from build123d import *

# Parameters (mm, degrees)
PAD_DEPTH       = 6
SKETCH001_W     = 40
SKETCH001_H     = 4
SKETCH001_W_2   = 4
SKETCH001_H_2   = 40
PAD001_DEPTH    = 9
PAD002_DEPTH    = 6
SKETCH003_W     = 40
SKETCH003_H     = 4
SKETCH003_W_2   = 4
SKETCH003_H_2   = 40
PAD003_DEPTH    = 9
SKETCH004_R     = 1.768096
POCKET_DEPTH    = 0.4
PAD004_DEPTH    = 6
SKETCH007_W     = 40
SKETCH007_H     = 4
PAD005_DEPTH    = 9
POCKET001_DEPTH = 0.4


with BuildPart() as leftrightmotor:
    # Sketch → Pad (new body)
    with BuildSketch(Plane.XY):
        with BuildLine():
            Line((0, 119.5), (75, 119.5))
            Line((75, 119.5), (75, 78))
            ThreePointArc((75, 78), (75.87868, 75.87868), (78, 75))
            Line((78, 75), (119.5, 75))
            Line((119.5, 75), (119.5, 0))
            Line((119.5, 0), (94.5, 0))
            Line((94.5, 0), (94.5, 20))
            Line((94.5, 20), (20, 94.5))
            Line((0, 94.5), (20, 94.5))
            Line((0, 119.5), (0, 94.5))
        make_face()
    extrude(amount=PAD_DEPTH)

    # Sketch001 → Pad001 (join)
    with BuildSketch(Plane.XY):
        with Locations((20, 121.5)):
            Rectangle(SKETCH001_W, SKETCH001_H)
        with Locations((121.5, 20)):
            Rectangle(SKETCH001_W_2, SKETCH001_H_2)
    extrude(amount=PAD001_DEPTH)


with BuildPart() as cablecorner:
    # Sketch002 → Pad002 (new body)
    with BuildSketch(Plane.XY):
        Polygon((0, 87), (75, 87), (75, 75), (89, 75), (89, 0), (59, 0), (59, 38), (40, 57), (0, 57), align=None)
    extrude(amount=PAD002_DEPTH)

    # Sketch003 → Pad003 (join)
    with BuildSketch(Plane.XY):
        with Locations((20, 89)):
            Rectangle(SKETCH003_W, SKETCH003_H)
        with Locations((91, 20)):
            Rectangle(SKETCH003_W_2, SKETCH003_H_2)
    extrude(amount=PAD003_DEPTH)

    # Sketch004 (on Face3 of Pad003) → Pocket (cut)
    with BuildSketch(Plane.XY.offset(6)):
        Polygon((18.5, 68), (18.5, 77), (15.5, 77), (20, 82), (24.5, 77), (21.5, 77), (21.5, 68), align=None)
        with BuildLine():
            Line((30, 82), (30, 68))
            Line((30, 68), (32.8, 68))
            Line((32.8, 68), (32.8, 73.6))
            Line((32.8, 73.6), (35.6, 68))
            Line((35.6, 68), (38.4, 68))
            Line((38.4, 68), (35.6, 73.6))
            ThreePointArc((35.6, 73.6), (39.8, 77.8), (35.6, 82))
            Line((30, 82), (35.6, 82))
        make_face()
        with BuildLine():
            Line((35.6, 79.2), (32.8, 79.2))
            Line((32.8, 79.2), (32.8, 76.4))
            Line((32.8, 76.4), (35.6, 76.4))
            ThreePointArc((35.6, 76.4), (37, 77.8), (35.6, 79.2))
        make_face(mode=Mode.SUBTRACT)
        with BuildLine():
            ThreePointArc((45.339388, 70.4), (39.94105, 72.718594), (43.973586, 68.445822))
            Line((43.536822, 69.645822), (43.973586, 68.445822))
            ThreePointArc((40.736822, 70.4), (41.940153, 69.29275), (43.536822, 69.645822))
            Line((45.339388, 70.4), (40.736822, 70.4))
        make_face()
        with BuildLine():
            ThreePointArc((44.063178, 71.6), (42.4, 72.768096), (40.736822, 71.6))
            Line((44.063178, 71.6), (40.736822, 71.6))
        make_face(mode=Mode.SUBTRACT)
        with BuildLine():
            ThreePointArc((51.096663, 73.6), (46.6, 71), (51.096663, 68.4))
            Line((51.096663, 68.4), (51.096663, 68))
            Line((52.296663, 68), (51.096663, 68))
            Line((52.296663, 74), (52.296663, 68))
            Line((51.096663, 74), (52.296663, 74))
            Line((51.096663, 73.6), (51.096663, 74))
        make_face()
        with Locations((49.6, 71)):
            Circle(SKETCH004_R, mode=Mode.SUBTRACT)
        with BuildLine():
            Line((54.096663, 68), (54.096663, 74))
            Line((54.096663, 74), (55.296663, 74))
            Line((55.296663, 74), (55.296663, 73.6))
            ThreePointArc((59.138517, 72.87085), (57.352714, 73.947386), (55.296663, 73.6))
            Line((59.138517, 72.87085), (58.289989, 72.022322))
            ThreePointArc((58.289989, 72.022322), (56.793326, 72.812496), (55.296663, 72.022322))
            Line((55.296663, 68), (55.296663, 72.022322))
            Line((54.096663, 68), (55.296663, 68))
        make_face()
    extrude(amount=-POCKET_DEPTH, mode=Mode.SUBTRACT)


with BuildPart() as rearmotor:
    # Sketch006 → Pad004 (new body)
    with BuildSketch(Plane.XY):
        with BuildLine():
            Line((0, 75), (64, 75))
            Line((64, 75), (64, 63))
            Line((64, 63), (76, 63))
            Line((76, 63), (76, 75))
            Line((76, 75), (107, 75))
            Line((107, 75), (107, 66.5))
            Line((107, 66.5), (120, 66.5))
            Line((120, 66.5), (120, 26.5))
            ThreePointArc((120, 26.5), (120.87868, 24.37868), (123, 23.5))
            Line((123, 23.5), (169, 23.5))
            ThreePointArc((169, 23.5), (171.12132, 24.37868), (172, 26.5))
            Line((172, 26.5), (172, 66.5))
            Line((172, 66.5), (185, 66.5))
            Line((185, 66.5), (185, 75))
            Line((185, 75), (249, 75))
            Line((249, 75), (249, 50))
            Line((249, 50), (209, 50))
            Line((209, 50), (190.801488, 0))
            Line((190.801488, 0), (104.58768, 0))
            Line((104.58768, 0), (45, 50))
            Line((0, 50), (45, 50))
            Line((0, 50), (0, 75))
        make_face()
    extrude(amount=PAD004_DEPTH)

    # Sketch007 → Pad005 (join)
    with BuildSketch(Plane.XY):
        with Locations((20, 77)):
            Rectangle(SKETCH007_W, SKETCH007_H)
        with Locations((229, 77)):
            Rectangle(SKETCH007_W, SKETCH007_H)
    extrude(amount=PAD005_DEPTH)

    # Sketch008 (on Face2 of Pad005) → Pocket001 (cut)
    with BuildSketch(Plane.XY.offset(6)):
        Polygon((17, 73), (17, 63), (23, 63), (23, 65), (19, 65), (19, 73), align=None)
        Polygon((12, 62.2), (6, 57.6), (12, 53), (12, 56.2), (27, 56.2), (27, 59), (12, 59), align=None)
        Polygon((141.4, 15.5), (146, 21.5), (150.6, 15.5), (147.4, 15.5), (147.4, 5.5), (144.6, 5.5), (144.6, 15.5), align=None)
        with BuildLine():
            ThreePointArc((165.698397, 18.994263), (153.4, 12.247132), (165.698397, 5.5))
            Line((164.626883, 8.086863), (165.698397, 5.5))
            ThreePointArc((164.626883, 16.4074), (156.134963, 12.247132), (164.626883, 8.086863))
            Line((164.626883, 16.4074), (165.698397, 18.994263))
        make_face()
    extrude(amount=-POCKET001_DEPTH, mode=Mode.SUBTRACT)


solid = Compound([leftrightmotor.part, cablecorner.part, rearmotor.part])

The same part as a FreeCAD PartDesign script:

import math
import FreeCAD as App
import Part
import Sketcher
Q = App.Units.Quantity


def add_polygon(sketch, points):
    """Adds a closed chain of lines whose ends are joined by coincident constraints."""
    first, n = sketch.GeometryCount, len(points)
    for a, b in zip(points, points[1:] + points[:1]):
        sketch.addGeometry(Part.LineSegment(App.Vector(*a, 0), App.Vector(*b, 0)), False)
    for i in range(n):
        sketch.addConstraint(Sketcher.Constraint("Coincident", first + i, 2, first + (i + 1) % n, 1))

doc = App.newDocument("Part")
body = doc.addObject("PartDesign::Body", "Body")

# Sketch on XY plane
sketch1 = doc.addObject("Sketcher::SketchObject", "Sketch")
body.addObject(sketch1)
sketch1.AttachmentSupport = (doc.XY_Plane, [""])
sketch1.MapMode = "FlatFace"
sketch1.addGeometry([
    Part.LineSegment(App.Vector(75, 119.5, 0), App.Vector(0, 119.5, 0)),  # 0
    Part.LineSegment(App.Vector(0, 119.5, 0), App.Vector(0, 94.5, 0)),  # 1
    Part.LineSegment(App.Vector(0, 94.5, 0), App.Vector(20, 94.5, 0)),  # 2
    Part.LineSegment(App.Vector(20, 94.5, 0), App.Vector(94.5, 20, 0)),  # 3
    Part.LineSegment(App.Vector(94.5, 20, 0), App.Vector(94.5, 0, 0)),  # 4
    Part.LineSegment(App.Vector(94.5, 0, 0), App.Vector(119.5, 0, 0)),  # 5
    Part.LineSegment(App.Vector(119.5, 0, 0), App.Vector(119.5, 75, 0)),  # 6
    Part.LineSegment(App.Vector(119.5, 75, 0), App.Vector(78, 75, 0)),  # 7
    Part.ArcOfCircle(Part.Circle(App.Vector(78, 78, 0), App.Vector(0, 0, 1), 3), math.radians(-180), math.radians(-90)),  # 8
    Part.LineSegment(App.Vector(75, 78, 0), App.Vector(75, 119.5, 0)),  # 9
], False)
sketch1.addConstraint([
    Sketcher.Constraint("Coincident", 0, 2, 1, 1),
    Sketcher.Constraint("Coincident", 1, 2, 2, 1),
    Sketcher.Constraint("Coincident", 2, 2, 3, 1),
    Sketcher.Constraint("Coincident", 3, 2, 4, 1),
    Sketcher.Constraint("Coincident", 4, 2, 5, 1),
    Sketcher.Constraint("Coincident", 5, 2, 6, 1),
    Sketcher.Constraint("Coincident", 6, 2, 7, 1),
    Sketcher.Constraint("Tangent", 7, 2, 8, 2),
    Sketcher.Constraint("Tangent", 8, 1, 9, 1),
    Sketcher.Constraint("Coincident", 9, 2, 0, 1),
    Sketcher.Constraint("Horizontal", 0),
    Sketcher.Constraint("Vertical", 1),
    Sketcher.Constraint("Horizontal", 2),
    Sketcher.Constraint("Vertical", 4),
    Sketcher.Constraint("Horizontal", 5),
    Sketcher.Constraint("Vertical", 6),
    Sketcher.Constraint("Horizontal", 7),
    Sketcher.Constraint("Vertical", 9),
    Sketcher.Constraint("PointOnObject", 0, 2, -2),
    Sketcher.Constraint("PointOnObject", 4, 2, -1),
    Sketcher.Constraint("Equal", 5, 1),
    Sketcher.Constraint("Equal", 2, 4),
    Sketcher.Constraint("Equal", 0, 6),
    Sketcher.Constraint("Equal", 7, 9),
    Sketcher.Constraint("Radius", 8, Q("3.000001 mm")),
    Sketcher.Constraint("DistanceX", 0, 2, 0, 1, Q("75 mm")),
    Sketcher.Constraint("DistanceX", 2, 1, 2, 2, Q("20 mm")),
    Sketcher.Constraint("DistanceX", 5, 1, 5, 2, Q("25 mm")),
    Sketcher.Constraint("DistanceX", 7, 2, 7, 1, Q("41.5 mm")),
])
pad1 = doc.addObject("PartDesign::Pad", "Pad")
body.addObject(pad1)
pad1.Profile = sketch1
pad1.Length = 6

# Sketch on XY plane
sketch2 = doc.addObject("Sketcher::SketchObject", "Sketch001")
body.addObject(sketch2)
sketch2.AttachmentSupport = (doc.XY_Plane, [""])
sketch2.MapMode = "FlatFace"
add_polygon(sketch2, [(0, 123.5), (0, 119.5), (40, 119.5), (40, 123.5)])  # lines 0-3
add_polygon(sketch2, [(119.5, 40), (119.5, 0), (123.5, 0), (123.5, 40)])  # lines 4-7
sketch2.addConstraint([
    Sketcher.Constraint("Vertical", 0),
    Sketcher.Constraint("Horizontal", 1),
    Sketcher.Constraint("Vertical", 2),
    Sketcher.Constraint("Horizontal", 3),
    Sketcher.Constraint("Vertical", 4),
    Sketcher.Constraint("Horizontal", 5),
    Sketcher.Constraint("Vertical", 6),
    Sketcher.Constraint("Horizontal", 7),
    Sketcher.Constraint("PointOnObject", 0, 2, -2),
    Sketcher.Constraint("PointOnObject", 4, 2, -1),
    Sketcher.Constraint("Equal", 7, 0),
    Sketcher.Constraint("Equal", 3, 4),
    Sketcher.Constraint("DistanceX", 1, 1, 1, 2, Q("40 mm")),
    Sketcher.Constraint("DistanceX", 5, 1, 5, 2, Q("4 mm")),
    Sketcher.Constraint("DistanceY", -1, 1, 0, 2, Q("119.5 mm")),
    Sketcher.Constraint("DistanceX", -1, 1, 4, 2, Q("119.5 mm")),
])
pad2 = doc.addObject("PartDesign::Pad", "Pad001")
body.addObject(pad2)
pad2.Profile = sketch2
pad2.Length = 9
body2 = doc.addObject("PartDesign::Body", "Body001")

# Sketch on XY plane
sketch3 = doc.addObject("Sketcher::SketchObject", "Sketch002")
body2.addObject(sketch3)
sketch3.AttachmentSupport = (doc.getObject("XY_Plane001"), [""])
sketch3.MapMode = "FlatFace"
add_polygon(sketch3, [(75, 87), (0, 87), (0, 57), (40, 57), (59, 38), (59, 0), (89, 0), (89, 75), (75, 75)])  # lines 0-8
sketch3.addConstraint([
    Sketcher.Constraint("Horizontal", 0),
    Sketcher.Constraint("Vertical", 1),
    Sketcher.Constraint("Horizontal", 2),
    Sketcher.Constraint("Vertical", 4),
    Sketcher.Constraint("Horizontal", 5),
    Sketcher.Constraint("Vertical", 6),
    Sketcher.Constraint("Horizontal", 7),
    Sketcher.Constraint("Vertical", 8),
    Sketcher.Constraint("PointOnObject", 0, 2, -2),
    Sketcher.Constraint("PointOnObject", 4, 2, -1),
    Sketcher.Constraint("Equal", 5, 1),
    Sketcher.Constraint("Equal", 0, 6),
    Sketcher.Constraint("DistanceX", 0, 2, 0, 1, Q("75 mm")),
    Sketcher.Constraint("DistanceX", 2, 1, 2, 2, Q("40 mm")),
    Sketcher.Constraint("DistanceX", 5, 1, 5, 2, Q("30 mm")),
    Sketcher.Constraint("DistanceX", 7, 2, 7, 1, Q("14 mm")),
    Sketcher.Constraint("DistanceY", 4, 2, 4, 1, Q("38 mm")),
    Sketcher.Constraint("DistanceY", 8, 1, 8, 2, Q("12 mm")),
])
pad3 = doc.addObject("PartDesign::Pad", "Pad002")
body2.addObject(pad3)
pad3.Profile = sketch3
pad3.Length = 6

# Sketch on XY plane
sketch4 = doc.addObject("Sketcher::SketchObject", "Sketch003")
body2.addObject(sketch4)
sketch4.AttachmentSupport = (doc.getObject("XY_Plane001"), [""])
sketch4.MapMode = "FlatFace"
add_polygon(sketch4, [(0, 91), (0, 87), (40, 87), (40, 91)])  # lines 0-3
add_polygon(sketch4, [(89, 40), (89, 0), (93, 0), (93, 40)])  # lines 4-7
sketch4.addConstraint([
    Sketcher.Constraint("Vertical", 0),
    Sketcher.Constraint("Horizontal", 1),
    Sketcher.Constraint("Vertical", 2),
    Sketcher.Constraint("Horizontal", 3),
    Sketcher.Constraint("Vertical", 4),
    Sketcher.Constraint("Horizontal", 5),
    Sketcher.Constraint("Vertical", 6),
    Sketcher.Constraint("Horizontal", 7),
    Sketcher.Constraint("PointOnObject", 0, 2, -2),
    Sketcher.Constraint("PointOnObject", 4, 2, -1),
    Sketcher.Constraint("Equal", 7, 0),
    Sketcher.Constraint("Equal", 3, 4),
    Sketcher.Constraint("DistanceX", 1, 1, 1, 2, Q("40 mm")),
    Sketcher.Constraint("DistanceX", 5, 1, 5, 2, Q("4 mm")),
    Sketcher.Constraint("DistanceY", -1, 1, 0, 2, Q("87 mm")),
    Sketcher.Constraint("DistanceX", -1, 1, 4, 2, Q("89 mm")),
])
pad4 = doc.addObject("PartDesign::Pad", "Pad003")
body2.addObject(pad4)
pad4.Profile = sketch4
pad4.Length = 9

# Sketch on XY plane
sketch5 = doc.addObject("Sketcher::SketchObject", "Sketch004")
body2.addObject(sketch5)
sketch5.AttachmentSupport = (doc.getObject("XY_Plane001"), [""])
sketch5.MapMode = "FlatFace"
sketch5.AttachmentOffset = App.Placement(App.Vector(0, 0, 6), App.Rotation())
add_polygon(sketch5, [(18.5, 77), (18.5, 68), (21.5, 68), (21.5, 77), (24.5, 77), (20, 82), (15.5, 77)])  # lines 0-6
sketch5.addGeometry(Part.LineSegment(App.Vector(30, 82, 0), App.Vector(30, 68, 0)), False)  # 7
sketch5.addGeometry(Part.LineSegment(App.Vector(30, 68, 0), App.Vector(32.8, 68, 0)), False)  # 8
sketch5.addGeometry(Part.LineSegment(App.Vector(32.8, 68, 0), App.Vector(32.8, 73.6, 0)), False)  # 9
sketch5.addGeometry(Part.LineSegment(App.Vector(32.8, 73.6, 0), App.Vector(35.6, 68, 0)), False)  # 10
sketch5.addGeometry(Part.LineSegment(App.Vector(35.6, 68, 0), App.Vector(38.4, 68, 0)), False)  # 11
sketch5.addGeometry(Part.LineSegment(App.Vector(38.4, 68, 0), App.Vector(35.6, 73.6, 0)), False)  # 12
sketch5.addGeometry(Part.ArcOfCircle(Part.Circle(App.Vector(35.6, 77.8, 0), App.Vector(0, 0, 1), 4.2), math.radians(-90), math.radians(90)), False)  # 13
sketch5.addGeometry(Part.LineSegment(App.Vector(35.6, 82, 0), App.Vector(30, 82, 0)), False)  # 14
sketch5.addGeometry(Part.LineSegment(App.Vector(32.8, 79.2, 0), App.Vector(35.6, 79.2, 0)), False)  # 15
sketch5.addGeometry(Part.ArcOfCircle(Part.Circle(App.Vector(35.6, 77.8, 0), App.Vector(0, 0, 1), 1.4), math.radians(-90), math.radians(90)), False)  # 16
sketch5.addGeometry(Part.LineSegment(App.Vector(35.6, 76.4, 0), App.Vector(32.8, 76.4, 0)), False)  # 17
sketch5.addGeometry(Part.LineSegment(App.Vector(32.8, 76.4, 0), App.Vector(32.8, 79.2, 0)), False)  # 18
sketch5.addGeometry(Part.ArcOfCircle(Part.Circle(App.Vector(42.4, 71, 0), App.Vector(0, 0, 1), 3), math.radians(-12), math.radians(302)), False)  # 19
sketch5.addGeometry(Part.LineSegment(App.Vector(43.97, 68.45, 0), App.Vector(43.54, 69.65, 0)), False)  # 20
sketch5.addGeometry(Part.ArcOfCircle(Part.Circle(App.Vector(42.4, 71, 0), App.Vector(0, 0, 1), 1.77), math.radians(-160), math.radians(-50)), False)  # 21
sketch5.addGeometry(Part.LineSegment(App.Vector(40.74, 70.4, 0), App.Vector(45.34, 70.4, 0)), False)  # 22
sketch5.addGeometry(Part.ArcOfCircle(Part.Circle(App.Vector(42.4, 71, 0), App.Vector(0, 0, 1), 1.77), math.radians(20), math.radians(160)), False)  # 23
sketch5.addGeometry(Part.LineSegment(App.Vector(44.06, 71.6, 0), App.Vector(40.74, 71.6, 0)), False)  # 24
sketch5.addGeometry(Part.ArcOfCircle(Part.Circle(App.Vector(49.6, 71, 0), App.Vector(0, 0, 1), 3), math.radians(60), math.radians(300)), False)  # 25
sketch5.addGeometry(Part.LineSegment(App.Vector(51.1, 68.4, 0), App.Vector(51.1, 68, 0)), False)  # 26
sketch5.addGeometry(Part.LineSegment(App.Vector(51.1, 68, 0), App.Vector(52.3, 68, 0)), False)  # 27
sketch5.addGeometry(Part.LineSegment(App.Vector(52.3, 68, 0), App.Vector(52.3, 74, 0)), False)  # 28
sketch5.addGeometry(Part.LineSegment(App.Vector(52.3, 74, 0), App.Vector(51.1, 74, 0)), False)  # 29
sketch5.addGeometry(Part.LineSegment(App.Vector(51.1, 74, 0), App.Vector(51.1, 73.6, 0)), False)  # 30
sketch5.addGeometry(Part.Circle(App.Vector(49.6, 71, 0), App.Vector(0, 0, 1), 1.77), False)  # 31
sketch5.addGeometry(Part.LineSegment(App.Vector(54.1, 74, 0), App.Vector(54.1, 68, 0)), False)  # 32
sketch5.addGeometry(Part.LineSegment(App.Vector(54.1, 68, 0), App.Vector(55.3, 68, 0)), False)  # 33
sketch5.addGeometry(Part.LineSegment(App.Vector(55.3, 68, 0), App.Vector(55.3, 72.02, 0)), False)  # 34
sketch5.addGeometry(Part.ArcOfCircle(Part.Circle(App.Vector(56.79, 71, 0), App.Vector(0, 0, 1), 1.81), math.radians(34), math.radians(146)), False)  # 35
sketch5.addGeometry(Part.LineSegment(App.Vector(58.29, 72.02, 0), App.Vector(59.14, 72.87, 0)), False)  # 36
sketch5.addGeometry(Part.ArcOfCircle(Part.Circle(App.Vector(56.79, 71, 0), App.Vector(0, 0, 1), 3), math.radians(39), math.radians(120)), False)  # 37
sketch5.addGeometry(Part.LineSegment(App.Vector(55.3, 73.6, 0), App.Vector(55.3, 74, 0)), False)  # 38
sketch5.addGeometry(Part.LineSegment(App.Vector(55.3, 74, 0), App.Vector(54.1, 74, 0)), False)  # 39
sketch5.addConstraint([
    Sketcher.Constraint("Coincident", 7, 2, 8, 1),
    Sketcher.Constraint("Coincident", 8, 2, 9, 1),
    Sketcher.Constraint("Coincident", 9, 2, 10, 1),
    Sketcher.Constraint("Coincident", 10, 2, 11, 1),
    Sketcher.Constraint("Coincident", 11, 2, 12, 1),
    Sketcher.Constraint("Coincident", 12, 2, 13, 1),
    Sketcher.Constraint("Tangent", 13, 2, 14, 1),
    Sketcher.Constraint("Coincident", 14, 2, 7, 1),
    Sketcher.Constraint("Tangent", 15, 2, 16, 2),
    Sketcher.Constraint("Tangent", 16, 1, 17, 1),
    Sketcher.Constraint("Coincident", 17, 2, 18, 1),
    Sketcher.Constraint("Coincident", 18, 2, 15, 1),
    Sketcher.Constraint("Coincident", 19, 2, 20, 1),
    Sketcher.Constraint("Coincident", 20, 2, 21, 2),
    Sketcher.Constraint("Coincident", 21, 1, 22, 1),
    Sketcher.Constraint("Coincident", 22, 2, 19, 1),
    Sketcher.Constraint("Coincident", 23, 1, 24, 1),
    Sketcher.Constraint("Coincident", 24, 2, 23, 2),
    Sketcher.Constraint("Coincident", 25, 2, 26, 1),
    Sketcher.Constraint("Coincident", 26, 2, 27, 1),
    Sketcher.Constraint("Coincident", 27, 2, 28, 1),
    Sketcher.Constraint("Coincident", 28, 2, 29, 1),
    Sketcher.Constraint("Coincident", 29, 2, 30, 1),
    Sketcher.Constraint("Coincident", 30, 2, 25, 1),
    Sketcher.Constraint("Coincident", 32, 2, 33, 1),
    Sketcher.Constraint("Coincident", 33, 2, 34, 1),
    Sketcher.Constraint("Coincident", 34, 2, 35, 2),
    Sketcher.Constraint("Coincident", 35, 1, 36, 1),
    Sketcher.Constraint("Coincident", 36, 2, 37, 1),
    Sketcher.Constraint("Coincident", 37, 2, 38, 1),
    Sketcher.Constraint("Coincident", 38, 2, 39, 1),
    Sketcher.Constraint("Coincident", 39, 2, 32, 1),
    Sketcher.Constraint("Vertical", 0),
    Sketcher.Constraint("Horizontal", 1),
    Sketcher.Constraint("Vertical", 2),
    Sketcher.Constraint("Horizontal", 3),
    Sketcher.Constraint("Horizontal", 6),
    Sketcher.Constraint("Vertical", 7),
    Sketcher.Constraint("Horizontal", 8),
    Sketcher.Constraint("Vertical", 9),
    Sketcher.Constraint("Horizontal", 11),
    Sketcher.Constraint("Horizontal", 14),
    Sketcher.Constraint("Horizontal", 15),
    Sketcher.Constraint("Horizontal", 17),
    Sketcher.Constraint("Vertical", 18),
    Sketcher.Constraint("Horizontal", 22),
    Sketcher.Constraint("Horizontal", 24),
    Sketcher.Constraint("Vertical", 26),
    Sketcher.Constraint("Horizontal", 27),
    Sketcher.Constraint("Vertical", 28),
    Sketcher.Constraint("Horizontal", 29),
    Sketcher.Constraint("Vertical", 30),
    Sketcher.Constraint("Vertical", 32),
    Sketcher.Constraint("Horizontal", 33),
    Sketcher.Constraint("Vertical", 34),
    Sketcher.Constraint("Vertical", 38),
    Sketcher.Constraint("Horizontal", 39),
    Sketcher.Constraint("Coincident", 16, 3, 13, 3),
    Sketcher.Constraint("Coincident", 21, 3, 19, 3),
    Sketcher.Constraint("Coincident", 23, 3, 19, 3),
    Sketcher.Constraint("Coincident", 31, 3, 25, 3),
    Sketcher.Constraint("Coincident", 37, 3, 35, 3),
    Sketcher.Constraint("Equal", 21, 23),
    Sketcher.Constraint("Equal", 19, 25),
    Sketcher.Constraint("Equal", 23, 31),
    Sketcher.Constraint("Equal", 25, 37),
    Sketcher.Constraint("Parallel", 10, 12),
    Sketcher.Constraint("Horizontal", 23, 3, 25, 3),
    Sketcher.Constraint("Horizontal", 31, 3, 35, 3),
    Sketcher.Constraint("Horizontal", 3, 2, 5, 2),
    Sketcher.Constraint("Horizontal", 1, 2, 7, 2),
    Sketcher.Constraint("Horizontal", 8, 2, 10, 2),
    Sketcher.Constraint("Horizontal", 9, 2, 12, 2),
    Sketcher.Constraint("Horizontal", 4, 2, 13, 2),
    Sketcher.Constraint("Horizontal", 11, 2, 26, 2),
    Sketcher.Constraint("Horizontal", 12, 2, 30, 2),
    Sketcher.Constraint("Horizontal", 27, 2, 32, 2),
    Sketcher.Constraint("Horizontal", 34, 2, 35, 1),
    Sketcher.Constraint("Horizontal", 30, 2, 37, 2),
    Sketcher.Constraint("Horizontal", 29, 2, 38, 2),
    Sketcher.Constraint("Vertical", 16, 3, 10, 2),
    Sketcher.Constraint("Vertical", 10, 2, 12, 2),
    Sketcher.Constraint("Vertical", 9, 2, 17, 2),
    Sketcher.Constraint("Vertical", 21, 1, 24, 2),
    Sketcher.Constraint("Vertical", 26, 2, 29, 2),
    Sketcher.Constraint("Vertical", 34, 2, 37, 2),
    Sketcher.Constraint("Equal", 1, 3),
    Sketcher.Constraint("Equal", 3, 6),
    Sketcher.Constraint("Equal", 8, 11),
    Sketcher.Constraint("Equal", 29, 33),
    Sketcher.Constraint("Equal", 14, 9),
    Sketcher.Constraint("Equal", 17, 18),
    Sketcher.Constraint("Equal", 26, 30),
    Sketcher.Constraint("Equal", 4, 5),
    Sketcher.Constraint("Radius", 19, Q("3 mm")),
    Sketcher.Constraint("Radius", 13, Q("4.2 mm")),
    Sketcher.Constraint("Radius", 16, Q("1.4 mm")),
    Sketcher.Constraint("DistanceX", 1, 1, 1, 2, Q("3 mm")),
    Sketcher.Constraint("DistanceY", 0, 2, 0, 1, Q("9 mm")),
    Sketcher.Constraint("DistanceY", 28, 1, 28, 2, Q("6 mm")),
    Sketcher.Constraint("Angle", 20, Q("109.999988 deg")),
    Sketcher.Constraint("Angle", 36, Q("45 deg")),
    Sketcher.Constraint("DistanceX", 27, 1, 27, 2, Q("1.2 mm")),
    Sketcher.Constraint("DistanceY", -1, 1, 19, 3, Q("71.000001 mm")),
    Sketcher.Constraint("DistanceX", -1, 1, 4, 2, Q("20 mm")),
    Sketcher.Constraint("DistanceX", -1, 1, 7, 2, Q("30 mm")),
    Sketcher.Constraint("DistanceX", 13, 3, 25, 3, Q("14 mm")),
    Sketcher.Constraint("DistanceX", 11, 2, 21, 3, Q("4 mm")),
    Sketcher.Constraint("DistanceY", 25, 2, 22, 2, Q("2 mm")),
    Sketcher.Constraint("DistanceX", 26, 2, 32, 2, Q("3 mm")),
    Sketcher.Constraint("Distance", 36, Q("1.2 mm")),
    Sketcher.Constraint("DistanceY", 19, 2, 20, 2, Q("1.2 mm")),
    Sketcher.Constraint("DistanceX", 21, 1, 20, 2, Q("2.8 mm")),
])
pocket1 = doc.addObject("PartDesign::Pocket", "Pocket")
body2.addObject(pocket1)
pocket1.Profile = sketch5
pocket1.Length = 0.4
body3 = doc.addObject("PartDesign::Body", "Body002")

# Sketch on XY plane
sketch6 = doc.addObject("Sketcher::SketchObject", "Sketch005")
body3.addObject(sketch6)
sketch6.AttachmentSupport = (doc.getObject("XY_Plane002"), [""])
sketch6.MapMode = "FlatFace"
sketch6.addGeometry([
    Part.LineSegment(App.Vector(64, 75, 0), App.Vector(0, 75, 0)),  # 0
    Part.LineSegment(App.Vector(0, 75, 0), App.Vector(0, 50, 0)),  # 1
    Part.LineSegment(App.Vector(0, 50, 0), App.Vector(45, 50, 0)),  # 2
    Part.LineSegment(App.Vector(45, 50, 0), App.Vector(104.6, 0, 0)),  # 3
    Part.LineSegment(App.Vector(104.6, 0, 0), App.Vector(190.8, 0, 0)),  # 4
    Part.LineSegment(App.Vector(190.8, 0, 0), App.Vector(209, 50, 0)),  # 5
    Part.LineSegment(App.Vector(209, 50, 0), App.Vector(249, 50, 0)),  # 6
    Part.LineSegment(App.Vector(249, 50, 0), App.Vector(249, 75, 0)),  # 7
    Part.LineSegment(App.Vector(249, 75, 0), App.Vector(185, 75, 0)),  # 8
    Part.LineSegment(App.Vector(185, 75, 0), App.Vector(185, 66.5, 0)),  # 9
    Part.LineSegment(App.Vector(185, 66.5, 0), App.Vector(172, 66.5, 0)),  # 10
    Part.LineSegment(App.Vector(172, 66.5, 0), App.Vector(172, 26.5, 0)),  # 11
    Part.ArcOfCircle(Part.Circle(App.Vector(169, 26.5, 0), App.Vector(0, 0, 1), 3), math.radians(-90), math.radians(0)),  # 12
    Part.LineSegment(App.Vector(169, 23.5, 0), App.Vector(123, 23.5, 0)),  # 13
    Part.ArcOfCircle(Part.Circle(App.Vector(123, 26.5, 0), App.Vector(0, 0, 1), 3), math.radians(-180), math.radians(-90)),  # 14
    Part.LineSegment(App.Vector(120, 26.5, 0), App.Vector(120, 66.5, 0)),  # 15
    Part.LineSegment(App.Vector(120, 66.5, 0), App.Vector(107, 66.5, 0)),  # 16
    Part.LineSegment(App.Vector(107, 66.5, 0), App.Vector(107, 75, 0)),  # 17
    Part.LineSegment(App.Vector(107, 75, 0), App.Vector(76, 75, 0)),  # 18
    Part.LineSegment(App.Vector(76, 75, 0), App.Vector(76, 63, 0)),  # 19
    Part.LineSegment(App.Vector(76, 63, 0), App.Vector(64, 63, 0)),  # 20
    Part.LineSegment(App.Vector(64, 63, 0), App.Vector(64, 75, 0)),  # 21
], False)
sketch6.addConstraint([
    Sketcher.Constraint("Coincident", 0, 2, 1, 1),
    Sketcher.Constraint("Coincident", 1, 2, 2, 1),
    Sketcher.Constraint("Coincident", 2, 2, 3, 1),
    Sketcher.Constraint("Coincident", 3, 2, 4, 1),
    Sketcher.Constraint("Coincident", 4, 2, 5, 1),
    Sketcher.Constraint("Coincident", 5, 2, 6, 1),
    Sketcher.Constraint("Coincident", 6, 2, 7, 1),
    Sketcher.Constraint("Coincident", 7, 2, 8, 1),
    Sketcher.Constraint("Coincident", 8, 2, 9, 1),
    Sketcher.Constraint("Coincident", 9, 2, 10, 1),
    Sketcher.Constraint("Coincident", 10, 2, 11, 1),
    Sketcher.Constraint("Tangent", 11, 2, 12, 2),
    Sketcher.Constraint("Tangent", 12, 1, 13, 1),
    Sketcher.Constraint("Tangent", 13, 2, 14, 2),
    Sketcher.Constraint("Tangent", 14, 1, 15, 1),
    Sketcher.Constraint("Coincident", 15, 2, 16, 1),
    Sketcher.Constraint("Coincident", 16, 2, 17, 1),
    Sketcher.Constraint("Coincident", 17, 2, 18, 1),
    Sketcher.Constraint("Coincident", 18, 2, 19, 1),
    Sketcher.Constraint("Coincident", 19, 2, 20, 1),
    Sketcher.Constraint("Coincident", 20, 2, 21, 1),
    Sketcher.Constraint("Coincident", 21, 2, 0, 1),
    Sketcher.Constraint("Horizontal", 0),
    Sketcher.Constraint("Vertical", 1),
    Sketcher.Constraint("Horizontal", 2),
    Sketcher.Constraint("Horizontal", 4),
    Sketcher.Constraint("Horizontal", 6),
    Sketcher.Constraint("Vertical", 7),
    Sketcher.Constraint("Horizontal", 8),
    Sketcher.Constraint("Vertical", 9),
    Sketcher.Constraint("Horizontal", 10),
    Sketcher.Constraint("Vertical", 11),
    Sketcher.Constraint("Horizontal", 13),
    Sketcher.Constraint("Vertical", 15),
    Sketcher.Constraint("Horizontal", 16),
    Sketcher.Constraint("Vertical", 17),
    Sketcher.Constraint("Horizontal", 18),
    Sketcher.Constraint("Vertical", 19),
    Sketcher.Constraint("Horizontal", 20),
    Sketcher.Constraint("Vertical", 21),
    Sketcher.Constraint("Equal", 12, 14),
    Sketcher.Constraint("PointOnObject", 0, 2, -2),
    Sketcher.Constraint("PointOnObject", 3, 2, -1),
    Sketcher.Constraint("Horizontal", 2, 2, 5, 2),
    Sketcher.Constraint("Horizontal", 0, 2, 7, 2),
    Sketcher.Constraint("Horizontal", 10, 2, 15, 2),
    Sketcher.Constraint("Horizontal", 8, 2, 17, 2),
    Sketcher.Constraint("Equal", 0, 8),
    Sketcher.Constraint("Equal", 10, 16),
    Sketcher.Constraint("Equal", 6, 11),
    Sketcher.Constraint("Equal", 20, 19),
    Sketcher.Constraint("Radius", 12, Q("3.000001 mm")),
    Sketcher.Constraint("DistanceX", 0, 2, 0, 1, Q("64 mm")),
    Sketcher.Constraint("DistanceX", 2, 1, 2, 2, Q("45 mm")),
    Sketcher.Constraint("DistanceX", 6, 1, 6, 2, Q("40 mm")),
    Sketcher.Constraint("DistanceX", 10, 2, 10, 1, Q("13 mm")),
    Sketcher.Constraint("DistanceX", 13, 2, 13, 1, Q("46 mm")),
    Sketcher.Constraint("DistanceX", 18, 2, 18, 1, Q("31 mm")),
    Sketcher.Constraint("DistanceX", 20, 2, 20, 1, Q("12 mm")),
    Sketcher.Constraint("DistanceY", 1, 2, 1, 1, Q("25 mm")),
    Sketcher.Constraint("Angle", 3, Q("-40 deg")),
    Sketcher.Constraint("Angle", 5, Q("70 deg")),
    Sketcher.Constraint("DistanceY", 9, 2, 9, 1, Q("8.5 mm")),
    Sketcher.Constraint("DistanceY", -1, 1, 0, 2, Q("75 mm")),
])
pad5 = doc.addObject("PartDesign::Pad", "Pad004")
body3.addObject(pad5)
pad5.Profile = sketch6
pad5.Length = 6

# Sketch on XY plane
sketch7 = doc.addObject("Sketcher::SketchObject", "Sketch006")
body3.addObject(sketch7)
sketch7.AttachmentSupport = (doc.getObject("XY_Plane002"), [""])
sketch7.MapMode = "FlatFace"
add_polygon(sketch7, [(0, 79), (0, 75), (40, 75), (40, 79)])  # lines 0-3
add_polygon(sketch7, [(209, 79), (209, 75), (249, 75), (249, 79)])  # lines 4-7
sketch7.addConstraint([
    Sketcher.Constraint("Vertical", 0),
    Sketcher.Constraint("Horizontal", 1),
    Sketcher.Constraint("Vertical", 2),
    Sketcher.Constraint("Horizontal", 3),
    Sketcher.Constraint("Vertical", 4),
    Sketcher.Constraint("Horizontal", 5),
    Sketcher.Constraint("Vertical", 6),
    Sketcher.Constraint("Horizontal", 7),
    Sketcher.Constraint("PointOnObject", 0, 2, -2),
    Sketcher.Constraint("Horizontal", 1, 2, 4, 2),
    Sketcher.Constraint("Horizontal", 3, 2, 6, 2),
    Sketcher.Constraint("Equal", 3, 5),
    Sketcher.Constraint("DistanceX", 1, 1, 1, 2, Q("40 mm")),
    Sketcher.Constraint("DistanceY", 0, 2, 0, 1, Q("4 mm")),
    Sketcher.Constraint("DistanceY", -1, 1, 0, 2, Q("75 mm")),
    Sketcher.Constraint("DistanceX", -1, 1, 4, 2, Q("209 mm")),
])
pad6 = doc.addObject("PartDesign::Pad", "Pad005")
body3.addObject(pad6)
pad6.Profile = sketch7
pad6.Length = 9

# Sketch on XY plane
sketch8 = doc.addObject("Sketcher::SketchObject", "Sketch007")
body3.addObject(sketch8)
sketch8.AttachmentSupport = (doc.getObject("XY_Plane002"), [""])
sketch8.MapMode = "FlatFace"
sketch8.AttachmentOffset = App.Placement(App.Vector(0, 0, 6), App.Rotation())
add_polygon(sketch8, [(17, 73), (17, 63), (23, 63), (23, 65), (19, 65), (19, 73)])  # lines 0-5
add_polygon(sketch8, [(12, 62.2), (6, 57.6), (12, 53), (12, 56.2), (27, 56.2), (27, 59), (12, 59)])  # lines 6-12
add_polygon(sketch8, [(146, 21.5), (141.4, 15.5), (144.6, 15.5), (144.6, 5.5), (147.4, 5.5), (147.4, 15.5), (150.6, 15.5)])  # lines 13-19
sketch8.addGeometry(Part.ArcOfCircle(Part.Circle(App.Vector(161.4, 12.2, 0), App.Vector(0, 0, 1), 8), math.radians(57), math.radians(303)), False)  # 20
sketch8.addGeometry(Part.LineSegment(App.Vector(165.7, 5.5, 0), App.Vector(164.6, 8.1, 0)), False)  # 21
sketch8.addGeometry(Part.ArcOfCircle(Part.Circle(App.Vector(161.4, 12.2, 0), App.Vector(0, 0, 1), 5.3), math.radians(52), math.radians(308)), False)  # 22
sketch8.addGeometry(Part.LineSegment(App.Vector(164.6, 16.4, 0), App.Vector(165.7, 19, 0)), False)  # 23
sketch8.addConstraint([
    Sketcher.Constraint("Coincident", 20, 2, 21, 1),
    Sketcher.Constraint("Coincident", 21, 2, 22, 2),
    Sketcher.Constraint("Coincident", 22, 1, 23, 1),
    Sketcher.Constraint("Coincident", 23, 2, 20, 1),
    Sketcher.Constraint("Vertical", 0),
    Sketcher.Constraint("Horizontal", 1),
    Sketcher.Constraint("Vertical", 2),
    Sketcher.Constraint("Horizontal", 3),
    Sketcher.Constraint("Vertical", 4),
    Sketcher.Constraint("Horizontal", 5),
    Sketcher.Constraint("Vertical", 8),
    Sketcher.Constraint("Horizontal", 9),
    Sketcher.Constraint("Vertical", 10),
    Sketcher.Constraint("Horizontal", 11),
    Sketcher.Constraint("Vertical", 12),
    Sketcher.Constraint("Horizontal", 14),
    Sketcher.Constraint("Vertical", 15),
    Sketcher.Constraint("Horizontal", 16),
    Sketcher.Constraint("Vertical", 17),
    Sketcher.Constraint("Horizontal", 18),
    Sketcher.Constraint("Coincident", 22, 3, 20, 3),
    Sketcher.Constraint("Perpendicular", 7, 13),
    Sketcher.Constraint("Perpendicular", 6, 19),
    Sketcher.Constraint("Horizontal", 14, 2, 17, 2),
    Sketcher.Constraint("Horizontal", 16, 2, 20, 2),
    Sketcher.Constraint("Vertical", 8, 2, 11, 2),
    Sketcher.Constraint("Vertical", 21, 2, 22, 1),
    Sketcher.Constraint("Vertical", 20, 2, 23, 2),
    Sketcher.Constraint("Equal", 14, 18),
    Sketcher.Constraint("Equal", 5, 2),
    Sketcher.Constraint("Equal", 18, 8),
    Sketcher.Constraint("Equal", 16, 10),
    Sketcher.Constraint("Equal", 8, 12),
    Sketcher.Constraint("Equal", 0, 15),
    Sketcher.Constraint("Equal", 6, 7),
    Sketcher.Constraint("Radius", 20, Q("8 mm")),
    Sketcher.Constraint("DistanceX", 1, 1, 1, 2, Q("6 mm")),
    Sketcher.Constraint("DistanceX", 3, 2, 3, 1, Q("4 mm")),
    Sketcher.Constraint("DistanceX", 9, 1, 9, 2, Q("15 mm")),
    Sketcher.Constraint("DistanceY", 0, 2, 0, 1, Q("10 mm")),
    Sketcher.Constraint("DistanceX", 14, 1, 14, 2, Q("3.2 mm")),
    Sketcher.Constraint("DistanceX", 16, 1, 16, 2, Q("2.8 mm")),
    Sketcher.Constraint("DistanceX", -1, 1, 0, 2, Q("17 mm")),
    Sketcher.Constraint("DistanceY", -1, 1, 0, 2, Q("63 mm")),
    Sketcher.Constraint("DistanceX", -1, 1, 6, 2, Q("6 mm")),
    Sketcher.Constraint("DistanceX", -1, 1, 7, 2, Q("12 mm")),
    Sketcher.Constraint("DistanceY", -1, 1, 7, 2, Q("53 mm")),
    Sketcher.Constraint("DistanceX", -1, 1, 19, 2, Q("146 mm")),
    Sketcher.Constraint("Angle", 21, Q("112.500005 deg")),
    Sketcher.Constraint("DistanceX", 13, 2, 22, 3, Q("20 mm")),
    Sketcher.Constraint("Distance", 21, Q("2.8 mm")),
    Sketcher.Constraint("DistanceY", -1, 1, 13, 2, Q("15.5 mm")),
    Sketcher.Constraint("Radius", 22, Q("5.265037 mm")),
])
pocket2 = doc.addObject("PartDesign::Pocket", "Pocket001")
body3.addObject(pocket2)
pocket2.Profile = sketch8
pocket2.Length = 0.4

doc.recompute()
